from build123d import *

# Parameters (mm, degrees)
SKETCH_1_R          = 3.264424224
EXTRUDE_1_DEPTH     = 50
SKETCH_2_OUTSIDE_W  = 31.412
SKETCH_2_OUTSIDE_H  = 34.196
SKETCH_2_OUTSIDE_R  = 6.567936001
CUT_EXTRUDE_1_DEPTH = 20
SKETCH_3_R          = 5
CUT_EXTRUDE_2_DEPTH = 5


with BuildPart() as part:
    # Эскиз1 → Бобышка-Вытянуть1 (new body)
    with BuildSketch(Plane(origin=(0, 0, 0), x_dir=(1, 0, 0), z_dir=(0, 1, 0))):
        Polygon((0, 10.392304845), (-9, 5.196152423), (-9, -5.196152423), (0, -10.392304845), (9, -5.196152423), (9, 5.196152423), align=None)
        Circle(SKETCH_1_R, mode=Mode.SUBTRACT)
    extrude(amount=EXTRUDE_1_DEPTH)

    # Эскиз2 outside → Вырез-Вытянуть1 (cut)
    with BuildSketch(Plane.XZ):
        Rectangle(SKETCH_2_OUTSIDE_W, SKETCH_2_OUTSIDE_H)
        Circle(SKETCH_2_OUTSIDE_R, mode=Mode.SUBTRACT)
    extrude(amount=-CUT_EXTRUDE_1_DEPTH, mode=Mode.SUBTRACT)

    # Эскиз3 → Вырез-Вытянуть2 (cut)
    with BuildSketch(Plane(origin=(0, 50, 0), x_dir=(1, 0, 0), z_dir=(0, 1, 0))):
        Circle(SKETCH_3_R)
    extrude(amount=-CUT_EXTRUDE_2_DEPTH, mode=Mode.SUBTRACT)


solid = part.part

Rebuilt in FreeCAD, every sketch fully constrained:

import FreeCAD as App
import Part
import Sketcher
Q = App.Units.Quantity

doc = App.newDocument("Part")
body = doc.addObject("PartDesign::Body", "Body")

# Sketch on XZ plane
sketch1 = body.newObject("Sketcher::SketchObject", "Sketch")
sketch1.AttachmentSupport = (doc.getObject("XZ_Plane"), [""])
sketch1.MapMode = "FlatFace"
sketch1.addGeometry([
    Part.LineSegment(App.Vector(0, -10.4, 0), App.Vector(-9, -5.2, 0)),  # 0
    Part.LineSegment(App.Vector(-9, -5.2, 0), App.Vector(-9, 5.2, 0)),  # 1
    Part.LineSegment(App.Vector(-9, 5.2, 0), App.Vector(0, 10.4, 0)),  # 2
    Part.LineSegment(App.Vector(0, 10.4, 0), App.Vector(9, 5.2, 0)),  # 3
    Part.LineSegment(App.Vector(9, 5.2, 0), App.Vector(9, -5.2, 0)),  # 4
    Part.LineSegment(App.Vector(9, -5.2, 0), App.Vector(0, -10.4, 0)),  # 5
    Part.Circle(App.Vector(0, 0, 0), App.Vector(0, 0, 1), 3.3),  # 6
], False)
sketch1.addConstraint([
    Sketcher.Constraint("Coincident", 0, 2, 1, 1),
    Sketcher.Constraint("Coincident", 1, 2, 2, 1),
    Sketcher.Constraint("Coincident", 2, 2, 3, 1),
    Sketcher.Constraint("Coincident", 3, 2, 4, 1),
    Sketcher.Constraint("Coincident", 4, 2, 5, 1),
    Sketcher.Constraint("Coincident", 5, 2, 0, 1),
    Sketcher.Constraint("Vertical", 1),
    Sketcher.Constraint("Vertical", 4),
    Sketcher.Constraint("Coincident", 6, 3, -1, 1),
    Sketcher.Constraint("Symmetric", 0, 2, 3, 2, -1, 1),
    Sketcher.Constraint("Symmetric", 2, 2, 5, 2, -1, 1),
    Sketcher.Constraint("PointOnObject", 2, 2, -2),
    Sketcher.Constraint("Parallel", 2, 5),
    Sketcher.Constraint("Horizontal", 1, 2, 3, 2),
    Sketcher.Constraint("Angle", 0, Q("150 deg")),
    Sketcher.Constraint("DistanceX", 0, 2, -1, 1, Q("9 mm")),
    Sketcher.Constraint("Diameter", 6, Q("6.528848 mm")),
    Sketcher.Constraint("DistanceY", 1, 1, 1, 2, Q("10.392305 mm")),
])
pad1 = body.newObject("PartDesign::Pad", "Pad")
pad1.Profile = sketch1
pad1.Length = 50
pad1.Reversed = True

# Sketch on XZ plane
sketch2 = body.newObject("Sketcher::SketchObject", "Sketch001")
sketch2.AttachmentSupport = (doc.getObject("XZ_Plane"), [""])
sketch2.MapMode = "FlatFace"
sketch2.addGeometry([
    Part.LineSegment(App.Vector(-16, 17, 0), App.Vector(-16, -17, 0)),  # 0
    Part.LineSegment(App.Vector(-16, -17, 0), App.Vector(16, -17, 0)),  # 1
    Part.LineSegment(App.Vector(16, -17, 0), App.Vector(16, 17, 0)),  # 2
    Part.LineSegment(App.Vector(16, 17, 0), App.Vector(-16, 17, 0)),  # 3
    Part.Circle(App.Vector(0, 0, 0), App.Vector(0, 0, 1), 7),  # 4
], False)
sketch2.addConstraint([
    Sketcher.Constraint("Coincident", 0, 2, 1, 1),
    Sketcher.Constraint("Coincident", 1, 2, 2, 1),
    Sketcher.Constraint("Coincident", 2, 2, 3, 1),
    Sketcher.Constraint("Coincident", 3, 2, 0, 1),
    Sketcher.Constraint("Vertical", 0),
    Sketcher.Constraint("Horizontal", 1),
    Sketcher.Constraint("Vertical", 2),
    Sketcher.Constraint("Horizontal", 3),
    Sketcher.Constraint("Coincident", 4, 3, -1, 1),
    Sketcher.Constraint("Symmetric", 0, 2, 2, 2, -1, 1),
    Sketcher.Constraint("DistanceX", 1, 1, 1, 2, Q("31.412 mm")),
    Sketcher.Constraint("DistanceY", 0, 2, 0, 1, Q("34.196 mm")),
    Sketcher.Constraint("Diameter", 4, Q("13.135872 mm")),
])
pocket1 = body.newObject("PartDesign::Pocket", "Pocket")
pocket1.Profile = sketch2
pocket1.Length = 20

# Sketch on XZ plane
sketch3 = body.newObject("Sketcher::SketchObject", "Sketch002")
sketch3.AttachmentSupport = (doc.getObject("XZ_Plane"), [""])
sketch3.MapMode = "FlatFace"
sketch3.AttachmentOffset = App.Placement(App.Vector(0, 0, -50), App.Rotation())
sketch3.addGeometry(Part.Circle(App.Vector(0, 0, 0), App.Vector(0, 0, 1), 5), False)
sketch3.addConstraint([
    Sketcher.Constraint("Coincident", 0, 3, -1, 1),
    Sketcher.Constraint("Diameter", 0, Q("10 mm")),
])
pocket2 = body.newObject("PartDesign::Pocket", "Pocket001")
pocket2.Profile = sketch3
pocket2.Length = 5
pocket2.Reversed = True

doc.recompute()
